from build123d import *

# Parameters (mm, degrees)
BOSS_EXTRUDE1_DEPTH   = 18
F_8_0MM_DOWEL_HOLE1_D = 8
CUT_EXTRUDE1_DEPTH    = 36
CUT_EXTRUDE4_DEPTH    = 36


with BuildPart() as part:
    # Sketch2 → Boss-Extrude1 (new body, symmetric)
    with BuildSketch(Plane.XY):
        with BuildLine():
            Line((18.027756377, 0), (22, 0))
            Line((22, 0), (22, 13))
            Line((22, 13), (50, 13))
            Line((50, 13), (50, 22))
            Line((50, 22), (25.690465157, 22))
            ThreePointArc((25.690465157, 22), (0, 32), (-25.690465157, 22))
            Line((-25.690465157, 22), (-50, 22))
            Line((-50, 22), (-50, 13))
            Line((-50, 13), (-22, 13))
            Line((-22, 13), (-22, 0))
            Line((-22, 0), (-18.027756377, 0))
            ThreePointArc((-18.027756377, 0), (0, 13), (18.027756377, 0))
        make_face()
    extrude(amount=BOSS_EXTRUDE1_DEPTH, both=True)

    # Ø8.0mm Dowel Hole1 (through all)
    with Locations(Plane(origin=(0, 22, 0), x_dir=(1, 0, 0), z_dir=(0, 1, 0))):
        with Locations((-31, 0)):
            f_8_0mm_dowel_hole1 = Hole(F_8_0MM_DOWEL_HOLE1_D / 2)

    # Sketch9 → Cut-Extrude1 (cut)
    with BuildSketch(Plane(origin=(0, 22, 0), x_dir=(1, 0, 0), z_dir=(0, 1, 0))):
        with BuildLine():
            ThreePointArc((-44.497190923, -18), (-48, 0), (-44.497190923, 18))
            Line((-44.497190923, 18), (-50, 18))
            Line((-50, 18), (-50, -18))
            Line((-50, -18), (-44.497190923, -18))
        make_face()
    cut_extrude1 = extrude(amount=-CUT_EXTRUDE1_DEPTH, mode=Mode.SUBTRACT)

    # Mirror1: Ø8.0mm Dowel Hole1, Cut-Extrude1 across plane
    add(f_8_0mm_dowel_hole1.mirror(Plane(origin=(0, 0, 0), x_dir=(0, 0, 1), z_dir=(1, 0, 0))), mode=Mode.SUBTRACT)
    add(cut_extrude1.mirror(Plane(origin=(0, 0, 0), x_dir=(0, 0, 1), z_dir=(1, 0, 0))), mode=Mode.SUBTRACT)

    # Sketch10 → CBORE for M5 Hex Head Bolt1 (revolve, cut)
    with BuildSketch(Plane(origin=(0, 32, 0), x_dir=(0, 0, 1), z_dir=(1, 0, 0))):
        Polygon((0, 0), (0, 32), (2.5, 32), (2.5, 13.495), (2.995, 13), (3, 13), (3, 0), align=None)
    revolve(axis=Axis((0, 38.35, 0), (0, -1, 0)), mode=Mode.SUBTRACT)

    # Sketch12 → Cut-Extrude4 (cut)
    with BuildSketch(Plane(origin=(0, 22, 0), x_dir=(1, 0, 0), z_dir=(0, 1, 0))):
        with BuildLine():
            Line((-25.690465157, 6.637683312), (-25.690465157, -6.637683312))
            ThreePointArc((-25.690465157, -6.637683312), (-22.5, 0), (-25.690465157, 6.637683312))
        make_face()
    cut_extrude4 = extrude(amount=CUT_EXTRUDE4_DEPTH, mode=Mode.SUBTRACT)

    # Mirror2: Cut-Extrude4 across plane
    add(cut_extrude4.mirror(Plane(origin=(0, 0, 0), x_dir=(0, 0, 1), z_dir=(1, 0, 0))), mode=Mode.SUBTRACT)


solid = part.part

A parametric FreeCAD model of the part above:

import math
import FreeCAD as App
import Part
import Sketcher
Q = App.Units.Quantity

doc = App.newDocument("Part")
body = doc.addObject("PartDesign::Body", "Body")

# Sketch on XY plane
sketch1 = body.newObject("Sketcher::SketchObject", "Sketch")
sketch1.AttachmentSupport = (doc.getObject("XY_Plane"), [""])
sketch1.MapMode = "FlatFace"
sketch1.addGeometry(Part.LineSegment(App.Vector(18, 0, 0), App.Vector(22, 0, 0)), False)
sketch1.addGeometry(Part.LineSegment(App.Vector(22, 0, 0), App.Vector(22, 13, 0)), False)
sketch1.addGeometry(Part.LineSegment(App.Vector(22, 13, 0), App.Vector(50, 13, 0)), False)
sketch1.addGeometry(Part.LineSegment(App.Vector(50, 13, 0), App.Vector(50, 22, 0)), False)
sketch1.addGeometry(Part.LineSegment(App.Vector(50, 22, 0), App.Vector(25.7, 22, 0)), False)
sketch1.addGeometry(Part.ArcOfCircle(Part.Circle(App.Vector(0, -6, 0), App.Vector(0, 0, 1), 38), math.radians(47), math.radians(133)), False)
sketch1.addGeometry(Part.LineSegment(App.Vector(-25.7, 22, 0), App.Vector(-50, 22, 0)), False)
sketch1.addGeometry(Part.LineSegment(App.Vector(-50, 22, 0), App.Vector(-50, 13, 0)), False)
sketch1.addGeometry(Part.LineSegment(App.Vector(-50, 13, 0), App.Vector(-22, 13, 0)), False)
sketch1.addGeometry(Part.LineSegment(App.Vector(-22, 13, 0), App.Vector(-22, 0, 0)), False)
sketch1.addGeometry(Part.LineSegment(App.Vector(-22, 0, 0), App.Vector(-18, 0, 0)), False)
sketch1.addGeometry(Part.ArcOfCircle(Part.Circle(App.Vector(0, -6, 0), App.Vector(0, 0, 1), 19), math.radians(18), math.radians(162)), False)
sketch1.addConstraint(Sketcher.Constraint("Coincident", 0, 2, 1, 1))
sketch1.addConstraint(Sketcher.Constraint("Coincident", 1, 2, 2, 1))
sketch1.addConstraint(Sketcher.Constraint("Coincident", 2, 2, 3, 1))
sketch1.addConstraint(Sketcher.Constraint("Coincident", 3, 2, 4, 1))
sketch1.addConstraint(Sketcher.Constraint("Coincident", 4, 2, 5, 1))
sketch1.addConstraint(Sketcher.Constraint("Coincident", 5, 2, 6, 1))
sketch1.addConstraint(Sketcher.Constraint("Coincident", 6, 2, 7, 1))
sketch1.addConstraint(Sketcher.Constraint("Coincident", 7, 2, 8, 1))
sketch1.addConstraint(Sketcher.Constraint("Coincident", 8, 2, 9, 1))
sketch1.addConstraint(Sketcher.Constraint("Coincident", 9, 2, 10, 1))
sketch1.addConstraint(Sketcher.Constraint("Coincident", 10, 2, 11, 2))
sketch1.addConstraint(Sketcher.Constraint("Coincident", 11, 1, 0, 1))
sketch1.addConstraint(Sketcher.Constraint("Horizontal", 0))
sketch1.addConstraint(Sketcher.Constraint("Vertical", 1))
sketch1.addConstraint(Sketcher.Constraint("Horizontal", 2))
sketch1.addConstraint(Sketcher.Constraint("Vertical", 3))
sketch1.addConstraint(Sketcher.Constraint("Horizontal", 4))
sketch1.addConstraint(Sketcher.Constraint("Horizontal", 6))
sketch1.addConstraint(Sketcher.Constraint("Vertical", 7))
sketch1.addConstraint(Sketcher.Constraint("Horizontal", 8))
sketch1.addConstraint(Sketcher.Constraint("Vertical", 9))
sketch1.addConstraint(Sketcher.Constraint("Horizontal", 10))
sketch1.addConstraint(Sketcher.Constraint("Coincident", 11, 3, 5, 3))
sketch1.addConstraint(Sketcher.Constraint("Symmetric", 0, 2, 9, 2, -1, 1))
sketch1.addConstraint(Sketcher.Constraint("Symmetric", 4, 2, 5, 2, -2))
sketch1.addConstraint(Sketcher.Constraint("Symmetric", 2, 2, 7, 2, -2))
sketch1.addConstraint(Sketcher.Constraint("PointOnObject", 0, 2, -1))
sketch1.addConstraint(Sketcher.Constraint("Radius", 5, Q("38 mm")))
sketch1.addConstraint(Sketcher.Constraint("Radius", 11, Q("19 mm")))
sketch1.addConstraint(Sketcher.Constraint("DistanceX", 2, 1, 2, 2, Q("28 mm")))
sketch1.addConstraint(Sketcher.Constraint("DistanceY", 1, 1, 1, 2, Q("13 mm")))
sketch1.addConstraint(Sketcher.Constraint("DistanceY", 3, 1, 3, 2, Q("9 mm")))
sketch1.addConstraint(Sketcher.Constraint("DistanceY", 5, 3, -1, 1, Q("6 mm")))
sketch1.addConstraint(Sketcher.Constraint("DistanceX", -1, 1, 0, 2, Q("22 mm")))
pad1 = body.newObject("PartDesign::Pad", "Pad")
pad1.Profile = sketch1
pad1.Length = 36
pad1.Midplane = True

# Sketch on XZ plane
sketch2 = body.newObject("Sketcher::SketchObject", "Sketch001")
sketch2.AttachmentSupport = (doc.getObject("XZ_Plane"), [""])
sketch2.MapMode = "FlatFace"
sketch2.AttachmentOffset = App.Placement(App.Vector(0, 0, -22), App.Rotation())
sketch2.addGeometry(Part.Circle(App.Vector(-31, 0, 0), App.Vector(0, 0, 1), 4), False)
sketch2.addConstraint(Sketcher.Constraint("PointOnObject", 0, 3, -1))
sketch2.addConstraint(Sketcher.Constraint("Diameter", 0, Q("8 mm")))
sketch2.addConstraint(Sketcher.Constraint("DistanceX", 0, 3, -1, 1, Q("31 mm")))
doc.recompute()
hole = body.newObject("PartDesign::Hole", "Hole")
hole.Profile = sketch2
hole.ThreadType = "None"
hole.Diameter = 8
hole.DepthType = "ThroughAll"
hole.Reversed = True

# Sketch on XZ plane
sketch3 = body.newObject("Sketcher::SketchObject", "Sketch002")
sketch3.AttachmentSupport = (doc.getObject("XZ_Plane"), [""])
sketch3.MapMode = "FlatFace"
sketch3.AttachmentOffset = App.Placement(App.Vector(0, 0, -22), App.Rotation())
sketch3.addGeometry(Part.ArcOfCircle(Part.Circle(App.Vector(0, 0, 0), App.Vector(0, 0, 1), 48), math.radians(158), math.radians(202)), False)
sketch3.addGeometry(Part.LineSegment(App.Vector(-44, -18, 0), App.Vector(-50, -18, 0)), False)
sketch3.addGeometry(Part.LineSegment(App.Vector(-50, -18, 0), App.Vector(-50, 18, 0)), False)
sketch3.addGeometry(Part.LineSegment(App.Vector(-50, 18, 0), App.Vector(-44, 18, 0)), False)
sketch3.addConstraint(Sketcher.Constraint("Coincident", 0, 2, 1, 1))
sketch3.addConstraint(Sketcher.Constraint("Coincident", 1, 2, 2, 1))
sketch3.addConstraint(Sketcher.Constraint("Coincident", 2, 2, 3, 1))
sketch3.addConstraint(Sketcher.Constraint("Coincident", 3, 2, 0, 1))
sketch3.addConstraint(Sketcher.Constraint("Horizontal", 1))
sketch3.addConstraint(Sketcher.Constraint("Vertical", 2))
sketch3.addConstraint(Sketcher.Constraint("Horizontal", 3))
sketch3.addConstraint(Sketcher.Constraint("Coincident", 0, 3, -1, 1))
sketch3.addConstraint(Sketcher.Constraint("Vertical", 0, 2, 3, 2))
sketch3.addConstraint(Sketcher.Constraint("Radius", 0, Q("48 mm")))
sketch3.addConstraint(Sketcher.Constraint("DistanceY", 2, 1, 2, 2, Q("36 mm")))
sketch3.addConstraint(Sketcher.Constraint("DistanceX", 1, 2, -1, 1, Q("50 mm")))
pocket1 = body.newObject("PartDesign::Pocket", "Pocket")
pocket1.Profile = sketch3
pocket1.Length = 36
pocket1.Reversed = True
doc.recompute()

mirrored = body.newObject("PartDesign::Mirrored", "Mirrored")
mirrored.Originals = [hole, pocket1]
mirrored.MirrorPlane = (doc.getObject("YZ_Plane"), [""])
body.Tip = mirrored

# Sketch on YZ plane
sketch4 = body.newObject("Sketcher::SketchObject", "Sketch003")
sketch4.AttachmentSupport = (doc.getObject("YZ_Plane"), [""])
sketch4.MapMode = "FlatFace"
sketch4.addGeometry(Part.LineSegment(App.Vector(0, 0, 0), App.Vector(32, 0, 0)), False)
sketch4.addGeometry(Part.LineSegment(App.Vector(32, 0, 0), App.Vector(32, 3, 0)), False)
sketch4.addGeometry(Part.LineSegment(App.Vector(32, 3, 0), App.Vector(19, 3, 0)), False)
sketch4.addGeometry(Part.LineSegment(App.Vector(19, 3, 0), App.Vector(19, 2.995, 0)), False)
sketch4.addGeometry(Part.LineSegment(App.Vector(19, 2.995, 0), App.Vector(18.505, 2.5, 0)), False)
sketch4.addGeometry(Part.LineSegment(App.Vector(18.505, 2.5, 0), App.Vector(0, 2.5, 0)), False)
sketch4.addGeometry(Part.LineSegment(App.Vector(0, 2.5, 0), App.Vector(0, 0, 0)), False)
sketch4.addConstraint(Sketcher.Constraint("Coincident", 0, 2, 1, 1))
sketch4.addConstraint(Sketcher.Constraint("Coincident", 1, 2, 2, 1))
sketch4.addConstraint(Sketcher.Constraint("Coincident", 2, 2, 3, 1))
sketch4.addConstraint(Sketcher.Constraint("Coincident", 3, 2, 4, 1))
sketch4.addConstraint(Sketcher.Constraint("Coincident", 4, 2, 5, 1))
sketch4.addConstraint(Sketcher.Constraint("Coincident", 5, 2, 6, 1))
sketch4.addConstraint(Sketcher.Constraint("Coincident", 6, 2, 0, 1))
sketch4.addConstraint(Sketcher.Constraint("Horizontal", 0))
sketch4.addConstraint(Sketcher.Constraint("Vertical", 1))
sketch4.addConstraint(Sketcher.Constraint("Horizontal", 2))
sketch4.addConstraint(Sketcher.Constraint("Vertical", 3))
sketch4.addConstraint(Sketcher.Constraint("Horizontal", 5))
sketch4.addConstraint(Sketcher.Constraint("Vertical", 6))
sketch4.addConstraint(Sketcher.Constraint("Coincident", 6, 2, -1, 1))
sketch4.addConstraint(Sketcher.Constraint("DistanceX", 0, 1, 0, 2, Q("32 mm")))
sketch4.addConstraint(Sketcher.Constraint("DistanceX", 2, 2, 2, 1, Q("13 mm")))
sketch4.addConstraint(Sketcher.Constraint("DistanceY", 1, 1, 1, 2, Q("3 mm")))
sketch4.addConstraint(Sketcher.Constraint("Angle", 4, Q("-135 deg")))
sketch4.addConstraint(Sketcher.Constraint("DistanceY", 6, 2, 6, 1, Q("2.5 mm")))
sketch4.addConstraint(Sketcher.Constraint("DistanceX", 5, 2, 5, 1, Q("18.505 mm")))
groove = body.newObject("PartDesign::Groove", "Groove")
groove.Profile = sketch4
groove.ReferenceAxis = (sketch4, ["H_Axis"])
groove.Angle = 360

# Sketch on XZ plane
sketch5 = body.newObject("Sketcher::SketchObject", "Sketch004")
sketch5.AttachmentSupport = (doc.getObject("XZ_Plane"), [""])
sketch5.MapMode = "FlatFace"
sketch5.AttachmentOffset = App.Placement(App.Vector(0, 0, -22), App.Rotation())
sketch5.addGeometry(Part.LineSegment(App.Vector(-26, -7, 0), App.Vector(-26, 7, 0)), False)
sketch5.addGeometry(Part.ArcOfCircle(Part.Circle(App.Vector(-31, 0, 0), App.Vector(0, 0, 1), 8), math.radians(-51), math.radians(51)), False)
sketch5.addConstraint(Sketcher.Constraint("Coincident", 0, 1, 1, 1))
sketch5.addConstraint(Sketcher.Constraint("Coincident", 1, 2, 0, 2))
sketch5.addConstraint(Sketcher.Constraint("Vertical", 0))
sketch5.addConstraint(Sketcher.Constraint("PointOnObject", 1, 3, -1))
sketch5.addConstraint(Sketcher.Constraint("Radius", 1, Q("8.5 mm")))
sketch5.addConstraint(Sketcher.Constraint("DistanceX", 1, 3, -1, 1, Q("31 mm")))
sketch5.addConstraint(Sketcher.Constraint("DistanceY", 0, 1, 0, 2, Q("13.275367 mm")))
pocket2 = body.newObject("PartDesign::Pocket", "Pocket001")
pocket2.Profile = sketch5
pocket2.Length = 36
doc.recompute()

mirrored2 = body.newObject("PartDesign::Mirrored", "Mirrored001")
mirrored2.Originals = [pocket2]
mirrored2.MirrorPlane = (doc.getObject("YZ_Plane"), [""])
body.Tip = mirrored2

doc.recompute()
